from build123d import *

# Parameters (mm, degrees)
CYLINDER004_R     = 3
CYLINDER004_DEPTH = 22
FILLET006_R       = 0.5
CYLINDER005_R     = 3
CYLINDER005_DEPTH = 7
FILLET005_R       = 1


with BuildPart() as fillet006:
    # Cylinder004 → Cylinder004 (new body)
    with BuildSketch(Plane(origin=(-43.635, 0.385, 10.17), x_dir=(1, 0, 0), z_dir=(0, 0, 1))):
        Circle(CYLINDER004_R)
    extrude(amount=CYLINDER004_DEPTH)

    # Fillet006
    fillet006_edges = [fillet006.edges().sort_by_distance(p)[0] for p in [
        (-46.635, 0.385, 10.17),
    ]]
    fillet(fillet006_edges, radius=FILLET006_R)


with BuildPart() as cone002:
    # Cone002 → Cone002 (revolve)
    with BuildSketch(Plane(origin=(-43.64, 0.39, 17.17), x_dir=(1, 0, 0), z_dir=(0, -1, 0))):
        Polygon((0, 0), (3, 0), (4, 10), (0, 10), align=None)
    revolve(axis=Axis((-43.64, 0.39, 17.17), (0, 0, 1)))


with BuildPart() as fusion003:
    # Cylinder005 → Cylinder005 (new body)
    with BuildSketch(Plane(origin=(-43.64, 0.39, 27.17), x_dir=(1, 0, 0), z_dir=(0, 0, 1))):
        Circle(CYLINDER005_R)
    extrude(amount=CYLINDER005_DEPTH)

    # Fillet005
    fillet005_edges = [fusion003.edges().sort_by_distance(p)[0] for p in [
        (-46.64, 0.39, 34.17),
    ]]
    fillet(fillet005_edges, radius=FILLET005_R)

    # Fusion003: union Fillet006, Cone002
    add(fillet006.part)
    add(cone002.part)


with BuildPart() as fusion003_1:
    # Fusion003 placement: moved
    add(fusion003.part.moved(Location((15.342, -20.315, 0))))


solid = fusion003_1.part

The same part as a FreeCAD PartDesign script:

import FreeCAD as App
import Part
import Sketcher

V = App.Vector
Q = App.Units.Quantity


def edges_at(feature, points):
    """Names of the edges that pass closest to the given points."""
    edges = feature.Shape.Edges
    near = lambda p: min(range(len(edges)), key=lambda i: edges[i].distToShape(Part.Vertex(*p))[0])
    return sorted({f"Edge{near(p) + 1}" for p in points})

doc = App.newDocument("Part")
body = doc.addObject("PartDesign::Body", "Body")

# Sketch on XY plane
sketch1 = body.newObject("Sketcher::SketchObject", "Sketch")
sketch1.AttachmentSupport = (doc.getObject("XY_Plane"), [""])
sketch1.MapMode = "FlatFace"
sketch1.AttachmentOffset = App.Placement(V(0, 0, 10.17), App.Rotation())
sketch1.addGeometry(Part.Circle(V(-43.6, 0.4, 0), V(0, 0, 1), 3), False)
sketch1.addConstraint(Sketcher.Constraint("Diameter", 0, Q("6 mm")))
sketch1.addConstraint(Sketcher.Constraint("DistanceX", 0, 3, -1, 1, Q("43.635 mm")))
sketch1.addConstraint(Sketcher.Constraint("DistanceY", -1, 1, 0, 3, Q("0.385 mm")))
pad1 = body.newObject("PartDesign::Pad", "Pad")
pad1.Profile = sketch1
pad1.Length = 22
doc.recompute()

fillet = body.newObject("PartDesign::Fillet", "Fillet")
fillet.Base = (pad1, edges_at(pad1, [(-46.635, 0.385, 10.17)]))
fillet.Radius = 0.5
body2 = doc.addObject("PartDesign::Body", "Body001")

# Sketch on XZ plane
sketch2 = body2.newObject("Sketcher::SketchObject", "Sketch001")
sketch2.AttachmentSupport = (doc.getObject("XZ_Plane001"), [""])
sketch2.MapMode = "FlatFace"
sketch2.AttachmentOffset = App.Placement(V(0, 0, -0.39), App.Rotation())
sketch2.addGeometry(Part.LineSegment(V(-43.6, 17.2, 0), V(-40.6, 17.2, 0)), False)
sketch2.addGeometry(Part.LineSegment(V(-40.6, 17.2, 0), V(-39.6, 27.2, 0)), False)
sketch2.addGeometry(Part.LineSegment(V(-39.6, 27.2, 0), V(-43.6, 27.2, 0)), False)
sketch2.addGeometry(Part.LineSegment(V(-43.6, 27.2, 0), V(-43.6, 17.2, 0)), False)
sketch2.addGeometry(Part.LineSegment(V(-43.6, 17.2, 0), V(-43.6, 27.2, 0)), True)  # axis
sketch2.addConstraint(Sketcher.Constraint("Coincident", 0, 2, 1, 1))
sketch2.addConstraint(Sketcher.Constraint("Coincident", 1, 2, 2, 1))
sketch2.addConstraint(Sketcher.Constraint("Coincident", 2, 2, 3, 1))
sketch2.addConstraint(Sketcher.Constraint("Coincident", 3, 2, 0, 1))
sketch2.addConstraint(Sketcher.Constraint("Horizontal", 0))
sketch2.addConstraint(Sketcher.Constraint("Horizontal", 2))
sketch2.addConstraint(Sketcher.Constraint("Vertical", 3))
sketch2.addConstraint(Sketcher.Constraint("Vertical", 4))
sketch2.addConstraint(Sketcher.Constraint("Coincident", 4, 1, 3, 2))
sketch2.addConstraint(Sketcher.Constraint("Horizontal", 1, 2, 4, 2))
sketch2.addConstraint(Sketcher.Constraint("DistanceX", 0, 1, 0, 2, Q("3 mm")))
sketch2.addConstraint(Sketcher.Constraint("DistanceX", 2, 2, 2, 1, Q("4 mm")))
sketch2.addConstraint(Sketcher.Constraint("DistanceY", 3, 2, 3, 1, Q("10 mm")))
sketch2.addConstraint(Sketcher.Constraint("DistanceX", 0, 2, -1, 1, Q("40.64 mm")))
sketch2.addConstraint(Sketcher.Constraint("DistanceY", -1, 1, 0, 2, Q("17.17 mm")))
revolution = body2.newObject("PartDesign::Revolution", "Revolution")
revolution.Profile = sketch2
revolution.ReferenceAxis = (sketch2, ["Axis0"])
revolution.Angle = 360
body3 = doc.addObject("PartDesign::Body", "Body002")

# Sketch on XY plane
sketch3 = body3.newObject("Sketcher::SketchObject", "Sketch002")
sketch3.AttachmentSupport = (doc.getObject("XY_Plane002"), [""])
sketch3.MapMode = "FlatFace"
sketch3.AttachmentOffset = App.Placement(V(0, 0, 27.17), App.Rotation())
sketch3.addGeometry(Part.Circle(V(-43.6, 0.4, 0), V(0, 0, 1), 3), False)
sketch3.addConstraint(Sketcher.Constraint("Diameter", 0, Q("6 mm")))
sketch3.addConstraint(Sketcher.Constraint("DistanceX", 0, 3, -1, 1, Q("43.64 mm")))
sketch3.addConstraint(Sketcher.Constraint("DistanceY", -1, 1, 0, 3, Q("0.39 mm")))
pad2 = body3.newObject("PartDesign::Pad", "Pad001")
pad2.Profile = sketch3
pad2.Length = 7
doc.recompute()

fillet2 = body3.newObject("PartDesign::Fillet", "Fillet001")
fillet2.Base = (pad2, edges_at(pad2, [(-46.64, 0.39, 34.17)]))
fillet2.Radius = 1
doc.recompute()

boolean = body3.newObject("PartDesign::Boolean", "Boolean")
boolean.Type = "Fuse"
boolean.addObjects([body])
doc.recompute()

boolean2 = body3.newObject("PartDesign::Boolean", "Boolean001")
boolean2.Type = "Fuse"
boolean2.addObjects([body2])
body4 = doc.addObject("PartDesign::Body", "Body003")
doc.recompute()

body3.Placement = App.Placement(V(15.342, -20.315, 0), App.Rotation(V(0, 0, 1), 0))
boolean3 = body4.newObject("PartDesign::Boolean", "Boolean002")
boolean3.Type = "Fuse"
boolean3.addObjects([body3])

doc.recompute()
